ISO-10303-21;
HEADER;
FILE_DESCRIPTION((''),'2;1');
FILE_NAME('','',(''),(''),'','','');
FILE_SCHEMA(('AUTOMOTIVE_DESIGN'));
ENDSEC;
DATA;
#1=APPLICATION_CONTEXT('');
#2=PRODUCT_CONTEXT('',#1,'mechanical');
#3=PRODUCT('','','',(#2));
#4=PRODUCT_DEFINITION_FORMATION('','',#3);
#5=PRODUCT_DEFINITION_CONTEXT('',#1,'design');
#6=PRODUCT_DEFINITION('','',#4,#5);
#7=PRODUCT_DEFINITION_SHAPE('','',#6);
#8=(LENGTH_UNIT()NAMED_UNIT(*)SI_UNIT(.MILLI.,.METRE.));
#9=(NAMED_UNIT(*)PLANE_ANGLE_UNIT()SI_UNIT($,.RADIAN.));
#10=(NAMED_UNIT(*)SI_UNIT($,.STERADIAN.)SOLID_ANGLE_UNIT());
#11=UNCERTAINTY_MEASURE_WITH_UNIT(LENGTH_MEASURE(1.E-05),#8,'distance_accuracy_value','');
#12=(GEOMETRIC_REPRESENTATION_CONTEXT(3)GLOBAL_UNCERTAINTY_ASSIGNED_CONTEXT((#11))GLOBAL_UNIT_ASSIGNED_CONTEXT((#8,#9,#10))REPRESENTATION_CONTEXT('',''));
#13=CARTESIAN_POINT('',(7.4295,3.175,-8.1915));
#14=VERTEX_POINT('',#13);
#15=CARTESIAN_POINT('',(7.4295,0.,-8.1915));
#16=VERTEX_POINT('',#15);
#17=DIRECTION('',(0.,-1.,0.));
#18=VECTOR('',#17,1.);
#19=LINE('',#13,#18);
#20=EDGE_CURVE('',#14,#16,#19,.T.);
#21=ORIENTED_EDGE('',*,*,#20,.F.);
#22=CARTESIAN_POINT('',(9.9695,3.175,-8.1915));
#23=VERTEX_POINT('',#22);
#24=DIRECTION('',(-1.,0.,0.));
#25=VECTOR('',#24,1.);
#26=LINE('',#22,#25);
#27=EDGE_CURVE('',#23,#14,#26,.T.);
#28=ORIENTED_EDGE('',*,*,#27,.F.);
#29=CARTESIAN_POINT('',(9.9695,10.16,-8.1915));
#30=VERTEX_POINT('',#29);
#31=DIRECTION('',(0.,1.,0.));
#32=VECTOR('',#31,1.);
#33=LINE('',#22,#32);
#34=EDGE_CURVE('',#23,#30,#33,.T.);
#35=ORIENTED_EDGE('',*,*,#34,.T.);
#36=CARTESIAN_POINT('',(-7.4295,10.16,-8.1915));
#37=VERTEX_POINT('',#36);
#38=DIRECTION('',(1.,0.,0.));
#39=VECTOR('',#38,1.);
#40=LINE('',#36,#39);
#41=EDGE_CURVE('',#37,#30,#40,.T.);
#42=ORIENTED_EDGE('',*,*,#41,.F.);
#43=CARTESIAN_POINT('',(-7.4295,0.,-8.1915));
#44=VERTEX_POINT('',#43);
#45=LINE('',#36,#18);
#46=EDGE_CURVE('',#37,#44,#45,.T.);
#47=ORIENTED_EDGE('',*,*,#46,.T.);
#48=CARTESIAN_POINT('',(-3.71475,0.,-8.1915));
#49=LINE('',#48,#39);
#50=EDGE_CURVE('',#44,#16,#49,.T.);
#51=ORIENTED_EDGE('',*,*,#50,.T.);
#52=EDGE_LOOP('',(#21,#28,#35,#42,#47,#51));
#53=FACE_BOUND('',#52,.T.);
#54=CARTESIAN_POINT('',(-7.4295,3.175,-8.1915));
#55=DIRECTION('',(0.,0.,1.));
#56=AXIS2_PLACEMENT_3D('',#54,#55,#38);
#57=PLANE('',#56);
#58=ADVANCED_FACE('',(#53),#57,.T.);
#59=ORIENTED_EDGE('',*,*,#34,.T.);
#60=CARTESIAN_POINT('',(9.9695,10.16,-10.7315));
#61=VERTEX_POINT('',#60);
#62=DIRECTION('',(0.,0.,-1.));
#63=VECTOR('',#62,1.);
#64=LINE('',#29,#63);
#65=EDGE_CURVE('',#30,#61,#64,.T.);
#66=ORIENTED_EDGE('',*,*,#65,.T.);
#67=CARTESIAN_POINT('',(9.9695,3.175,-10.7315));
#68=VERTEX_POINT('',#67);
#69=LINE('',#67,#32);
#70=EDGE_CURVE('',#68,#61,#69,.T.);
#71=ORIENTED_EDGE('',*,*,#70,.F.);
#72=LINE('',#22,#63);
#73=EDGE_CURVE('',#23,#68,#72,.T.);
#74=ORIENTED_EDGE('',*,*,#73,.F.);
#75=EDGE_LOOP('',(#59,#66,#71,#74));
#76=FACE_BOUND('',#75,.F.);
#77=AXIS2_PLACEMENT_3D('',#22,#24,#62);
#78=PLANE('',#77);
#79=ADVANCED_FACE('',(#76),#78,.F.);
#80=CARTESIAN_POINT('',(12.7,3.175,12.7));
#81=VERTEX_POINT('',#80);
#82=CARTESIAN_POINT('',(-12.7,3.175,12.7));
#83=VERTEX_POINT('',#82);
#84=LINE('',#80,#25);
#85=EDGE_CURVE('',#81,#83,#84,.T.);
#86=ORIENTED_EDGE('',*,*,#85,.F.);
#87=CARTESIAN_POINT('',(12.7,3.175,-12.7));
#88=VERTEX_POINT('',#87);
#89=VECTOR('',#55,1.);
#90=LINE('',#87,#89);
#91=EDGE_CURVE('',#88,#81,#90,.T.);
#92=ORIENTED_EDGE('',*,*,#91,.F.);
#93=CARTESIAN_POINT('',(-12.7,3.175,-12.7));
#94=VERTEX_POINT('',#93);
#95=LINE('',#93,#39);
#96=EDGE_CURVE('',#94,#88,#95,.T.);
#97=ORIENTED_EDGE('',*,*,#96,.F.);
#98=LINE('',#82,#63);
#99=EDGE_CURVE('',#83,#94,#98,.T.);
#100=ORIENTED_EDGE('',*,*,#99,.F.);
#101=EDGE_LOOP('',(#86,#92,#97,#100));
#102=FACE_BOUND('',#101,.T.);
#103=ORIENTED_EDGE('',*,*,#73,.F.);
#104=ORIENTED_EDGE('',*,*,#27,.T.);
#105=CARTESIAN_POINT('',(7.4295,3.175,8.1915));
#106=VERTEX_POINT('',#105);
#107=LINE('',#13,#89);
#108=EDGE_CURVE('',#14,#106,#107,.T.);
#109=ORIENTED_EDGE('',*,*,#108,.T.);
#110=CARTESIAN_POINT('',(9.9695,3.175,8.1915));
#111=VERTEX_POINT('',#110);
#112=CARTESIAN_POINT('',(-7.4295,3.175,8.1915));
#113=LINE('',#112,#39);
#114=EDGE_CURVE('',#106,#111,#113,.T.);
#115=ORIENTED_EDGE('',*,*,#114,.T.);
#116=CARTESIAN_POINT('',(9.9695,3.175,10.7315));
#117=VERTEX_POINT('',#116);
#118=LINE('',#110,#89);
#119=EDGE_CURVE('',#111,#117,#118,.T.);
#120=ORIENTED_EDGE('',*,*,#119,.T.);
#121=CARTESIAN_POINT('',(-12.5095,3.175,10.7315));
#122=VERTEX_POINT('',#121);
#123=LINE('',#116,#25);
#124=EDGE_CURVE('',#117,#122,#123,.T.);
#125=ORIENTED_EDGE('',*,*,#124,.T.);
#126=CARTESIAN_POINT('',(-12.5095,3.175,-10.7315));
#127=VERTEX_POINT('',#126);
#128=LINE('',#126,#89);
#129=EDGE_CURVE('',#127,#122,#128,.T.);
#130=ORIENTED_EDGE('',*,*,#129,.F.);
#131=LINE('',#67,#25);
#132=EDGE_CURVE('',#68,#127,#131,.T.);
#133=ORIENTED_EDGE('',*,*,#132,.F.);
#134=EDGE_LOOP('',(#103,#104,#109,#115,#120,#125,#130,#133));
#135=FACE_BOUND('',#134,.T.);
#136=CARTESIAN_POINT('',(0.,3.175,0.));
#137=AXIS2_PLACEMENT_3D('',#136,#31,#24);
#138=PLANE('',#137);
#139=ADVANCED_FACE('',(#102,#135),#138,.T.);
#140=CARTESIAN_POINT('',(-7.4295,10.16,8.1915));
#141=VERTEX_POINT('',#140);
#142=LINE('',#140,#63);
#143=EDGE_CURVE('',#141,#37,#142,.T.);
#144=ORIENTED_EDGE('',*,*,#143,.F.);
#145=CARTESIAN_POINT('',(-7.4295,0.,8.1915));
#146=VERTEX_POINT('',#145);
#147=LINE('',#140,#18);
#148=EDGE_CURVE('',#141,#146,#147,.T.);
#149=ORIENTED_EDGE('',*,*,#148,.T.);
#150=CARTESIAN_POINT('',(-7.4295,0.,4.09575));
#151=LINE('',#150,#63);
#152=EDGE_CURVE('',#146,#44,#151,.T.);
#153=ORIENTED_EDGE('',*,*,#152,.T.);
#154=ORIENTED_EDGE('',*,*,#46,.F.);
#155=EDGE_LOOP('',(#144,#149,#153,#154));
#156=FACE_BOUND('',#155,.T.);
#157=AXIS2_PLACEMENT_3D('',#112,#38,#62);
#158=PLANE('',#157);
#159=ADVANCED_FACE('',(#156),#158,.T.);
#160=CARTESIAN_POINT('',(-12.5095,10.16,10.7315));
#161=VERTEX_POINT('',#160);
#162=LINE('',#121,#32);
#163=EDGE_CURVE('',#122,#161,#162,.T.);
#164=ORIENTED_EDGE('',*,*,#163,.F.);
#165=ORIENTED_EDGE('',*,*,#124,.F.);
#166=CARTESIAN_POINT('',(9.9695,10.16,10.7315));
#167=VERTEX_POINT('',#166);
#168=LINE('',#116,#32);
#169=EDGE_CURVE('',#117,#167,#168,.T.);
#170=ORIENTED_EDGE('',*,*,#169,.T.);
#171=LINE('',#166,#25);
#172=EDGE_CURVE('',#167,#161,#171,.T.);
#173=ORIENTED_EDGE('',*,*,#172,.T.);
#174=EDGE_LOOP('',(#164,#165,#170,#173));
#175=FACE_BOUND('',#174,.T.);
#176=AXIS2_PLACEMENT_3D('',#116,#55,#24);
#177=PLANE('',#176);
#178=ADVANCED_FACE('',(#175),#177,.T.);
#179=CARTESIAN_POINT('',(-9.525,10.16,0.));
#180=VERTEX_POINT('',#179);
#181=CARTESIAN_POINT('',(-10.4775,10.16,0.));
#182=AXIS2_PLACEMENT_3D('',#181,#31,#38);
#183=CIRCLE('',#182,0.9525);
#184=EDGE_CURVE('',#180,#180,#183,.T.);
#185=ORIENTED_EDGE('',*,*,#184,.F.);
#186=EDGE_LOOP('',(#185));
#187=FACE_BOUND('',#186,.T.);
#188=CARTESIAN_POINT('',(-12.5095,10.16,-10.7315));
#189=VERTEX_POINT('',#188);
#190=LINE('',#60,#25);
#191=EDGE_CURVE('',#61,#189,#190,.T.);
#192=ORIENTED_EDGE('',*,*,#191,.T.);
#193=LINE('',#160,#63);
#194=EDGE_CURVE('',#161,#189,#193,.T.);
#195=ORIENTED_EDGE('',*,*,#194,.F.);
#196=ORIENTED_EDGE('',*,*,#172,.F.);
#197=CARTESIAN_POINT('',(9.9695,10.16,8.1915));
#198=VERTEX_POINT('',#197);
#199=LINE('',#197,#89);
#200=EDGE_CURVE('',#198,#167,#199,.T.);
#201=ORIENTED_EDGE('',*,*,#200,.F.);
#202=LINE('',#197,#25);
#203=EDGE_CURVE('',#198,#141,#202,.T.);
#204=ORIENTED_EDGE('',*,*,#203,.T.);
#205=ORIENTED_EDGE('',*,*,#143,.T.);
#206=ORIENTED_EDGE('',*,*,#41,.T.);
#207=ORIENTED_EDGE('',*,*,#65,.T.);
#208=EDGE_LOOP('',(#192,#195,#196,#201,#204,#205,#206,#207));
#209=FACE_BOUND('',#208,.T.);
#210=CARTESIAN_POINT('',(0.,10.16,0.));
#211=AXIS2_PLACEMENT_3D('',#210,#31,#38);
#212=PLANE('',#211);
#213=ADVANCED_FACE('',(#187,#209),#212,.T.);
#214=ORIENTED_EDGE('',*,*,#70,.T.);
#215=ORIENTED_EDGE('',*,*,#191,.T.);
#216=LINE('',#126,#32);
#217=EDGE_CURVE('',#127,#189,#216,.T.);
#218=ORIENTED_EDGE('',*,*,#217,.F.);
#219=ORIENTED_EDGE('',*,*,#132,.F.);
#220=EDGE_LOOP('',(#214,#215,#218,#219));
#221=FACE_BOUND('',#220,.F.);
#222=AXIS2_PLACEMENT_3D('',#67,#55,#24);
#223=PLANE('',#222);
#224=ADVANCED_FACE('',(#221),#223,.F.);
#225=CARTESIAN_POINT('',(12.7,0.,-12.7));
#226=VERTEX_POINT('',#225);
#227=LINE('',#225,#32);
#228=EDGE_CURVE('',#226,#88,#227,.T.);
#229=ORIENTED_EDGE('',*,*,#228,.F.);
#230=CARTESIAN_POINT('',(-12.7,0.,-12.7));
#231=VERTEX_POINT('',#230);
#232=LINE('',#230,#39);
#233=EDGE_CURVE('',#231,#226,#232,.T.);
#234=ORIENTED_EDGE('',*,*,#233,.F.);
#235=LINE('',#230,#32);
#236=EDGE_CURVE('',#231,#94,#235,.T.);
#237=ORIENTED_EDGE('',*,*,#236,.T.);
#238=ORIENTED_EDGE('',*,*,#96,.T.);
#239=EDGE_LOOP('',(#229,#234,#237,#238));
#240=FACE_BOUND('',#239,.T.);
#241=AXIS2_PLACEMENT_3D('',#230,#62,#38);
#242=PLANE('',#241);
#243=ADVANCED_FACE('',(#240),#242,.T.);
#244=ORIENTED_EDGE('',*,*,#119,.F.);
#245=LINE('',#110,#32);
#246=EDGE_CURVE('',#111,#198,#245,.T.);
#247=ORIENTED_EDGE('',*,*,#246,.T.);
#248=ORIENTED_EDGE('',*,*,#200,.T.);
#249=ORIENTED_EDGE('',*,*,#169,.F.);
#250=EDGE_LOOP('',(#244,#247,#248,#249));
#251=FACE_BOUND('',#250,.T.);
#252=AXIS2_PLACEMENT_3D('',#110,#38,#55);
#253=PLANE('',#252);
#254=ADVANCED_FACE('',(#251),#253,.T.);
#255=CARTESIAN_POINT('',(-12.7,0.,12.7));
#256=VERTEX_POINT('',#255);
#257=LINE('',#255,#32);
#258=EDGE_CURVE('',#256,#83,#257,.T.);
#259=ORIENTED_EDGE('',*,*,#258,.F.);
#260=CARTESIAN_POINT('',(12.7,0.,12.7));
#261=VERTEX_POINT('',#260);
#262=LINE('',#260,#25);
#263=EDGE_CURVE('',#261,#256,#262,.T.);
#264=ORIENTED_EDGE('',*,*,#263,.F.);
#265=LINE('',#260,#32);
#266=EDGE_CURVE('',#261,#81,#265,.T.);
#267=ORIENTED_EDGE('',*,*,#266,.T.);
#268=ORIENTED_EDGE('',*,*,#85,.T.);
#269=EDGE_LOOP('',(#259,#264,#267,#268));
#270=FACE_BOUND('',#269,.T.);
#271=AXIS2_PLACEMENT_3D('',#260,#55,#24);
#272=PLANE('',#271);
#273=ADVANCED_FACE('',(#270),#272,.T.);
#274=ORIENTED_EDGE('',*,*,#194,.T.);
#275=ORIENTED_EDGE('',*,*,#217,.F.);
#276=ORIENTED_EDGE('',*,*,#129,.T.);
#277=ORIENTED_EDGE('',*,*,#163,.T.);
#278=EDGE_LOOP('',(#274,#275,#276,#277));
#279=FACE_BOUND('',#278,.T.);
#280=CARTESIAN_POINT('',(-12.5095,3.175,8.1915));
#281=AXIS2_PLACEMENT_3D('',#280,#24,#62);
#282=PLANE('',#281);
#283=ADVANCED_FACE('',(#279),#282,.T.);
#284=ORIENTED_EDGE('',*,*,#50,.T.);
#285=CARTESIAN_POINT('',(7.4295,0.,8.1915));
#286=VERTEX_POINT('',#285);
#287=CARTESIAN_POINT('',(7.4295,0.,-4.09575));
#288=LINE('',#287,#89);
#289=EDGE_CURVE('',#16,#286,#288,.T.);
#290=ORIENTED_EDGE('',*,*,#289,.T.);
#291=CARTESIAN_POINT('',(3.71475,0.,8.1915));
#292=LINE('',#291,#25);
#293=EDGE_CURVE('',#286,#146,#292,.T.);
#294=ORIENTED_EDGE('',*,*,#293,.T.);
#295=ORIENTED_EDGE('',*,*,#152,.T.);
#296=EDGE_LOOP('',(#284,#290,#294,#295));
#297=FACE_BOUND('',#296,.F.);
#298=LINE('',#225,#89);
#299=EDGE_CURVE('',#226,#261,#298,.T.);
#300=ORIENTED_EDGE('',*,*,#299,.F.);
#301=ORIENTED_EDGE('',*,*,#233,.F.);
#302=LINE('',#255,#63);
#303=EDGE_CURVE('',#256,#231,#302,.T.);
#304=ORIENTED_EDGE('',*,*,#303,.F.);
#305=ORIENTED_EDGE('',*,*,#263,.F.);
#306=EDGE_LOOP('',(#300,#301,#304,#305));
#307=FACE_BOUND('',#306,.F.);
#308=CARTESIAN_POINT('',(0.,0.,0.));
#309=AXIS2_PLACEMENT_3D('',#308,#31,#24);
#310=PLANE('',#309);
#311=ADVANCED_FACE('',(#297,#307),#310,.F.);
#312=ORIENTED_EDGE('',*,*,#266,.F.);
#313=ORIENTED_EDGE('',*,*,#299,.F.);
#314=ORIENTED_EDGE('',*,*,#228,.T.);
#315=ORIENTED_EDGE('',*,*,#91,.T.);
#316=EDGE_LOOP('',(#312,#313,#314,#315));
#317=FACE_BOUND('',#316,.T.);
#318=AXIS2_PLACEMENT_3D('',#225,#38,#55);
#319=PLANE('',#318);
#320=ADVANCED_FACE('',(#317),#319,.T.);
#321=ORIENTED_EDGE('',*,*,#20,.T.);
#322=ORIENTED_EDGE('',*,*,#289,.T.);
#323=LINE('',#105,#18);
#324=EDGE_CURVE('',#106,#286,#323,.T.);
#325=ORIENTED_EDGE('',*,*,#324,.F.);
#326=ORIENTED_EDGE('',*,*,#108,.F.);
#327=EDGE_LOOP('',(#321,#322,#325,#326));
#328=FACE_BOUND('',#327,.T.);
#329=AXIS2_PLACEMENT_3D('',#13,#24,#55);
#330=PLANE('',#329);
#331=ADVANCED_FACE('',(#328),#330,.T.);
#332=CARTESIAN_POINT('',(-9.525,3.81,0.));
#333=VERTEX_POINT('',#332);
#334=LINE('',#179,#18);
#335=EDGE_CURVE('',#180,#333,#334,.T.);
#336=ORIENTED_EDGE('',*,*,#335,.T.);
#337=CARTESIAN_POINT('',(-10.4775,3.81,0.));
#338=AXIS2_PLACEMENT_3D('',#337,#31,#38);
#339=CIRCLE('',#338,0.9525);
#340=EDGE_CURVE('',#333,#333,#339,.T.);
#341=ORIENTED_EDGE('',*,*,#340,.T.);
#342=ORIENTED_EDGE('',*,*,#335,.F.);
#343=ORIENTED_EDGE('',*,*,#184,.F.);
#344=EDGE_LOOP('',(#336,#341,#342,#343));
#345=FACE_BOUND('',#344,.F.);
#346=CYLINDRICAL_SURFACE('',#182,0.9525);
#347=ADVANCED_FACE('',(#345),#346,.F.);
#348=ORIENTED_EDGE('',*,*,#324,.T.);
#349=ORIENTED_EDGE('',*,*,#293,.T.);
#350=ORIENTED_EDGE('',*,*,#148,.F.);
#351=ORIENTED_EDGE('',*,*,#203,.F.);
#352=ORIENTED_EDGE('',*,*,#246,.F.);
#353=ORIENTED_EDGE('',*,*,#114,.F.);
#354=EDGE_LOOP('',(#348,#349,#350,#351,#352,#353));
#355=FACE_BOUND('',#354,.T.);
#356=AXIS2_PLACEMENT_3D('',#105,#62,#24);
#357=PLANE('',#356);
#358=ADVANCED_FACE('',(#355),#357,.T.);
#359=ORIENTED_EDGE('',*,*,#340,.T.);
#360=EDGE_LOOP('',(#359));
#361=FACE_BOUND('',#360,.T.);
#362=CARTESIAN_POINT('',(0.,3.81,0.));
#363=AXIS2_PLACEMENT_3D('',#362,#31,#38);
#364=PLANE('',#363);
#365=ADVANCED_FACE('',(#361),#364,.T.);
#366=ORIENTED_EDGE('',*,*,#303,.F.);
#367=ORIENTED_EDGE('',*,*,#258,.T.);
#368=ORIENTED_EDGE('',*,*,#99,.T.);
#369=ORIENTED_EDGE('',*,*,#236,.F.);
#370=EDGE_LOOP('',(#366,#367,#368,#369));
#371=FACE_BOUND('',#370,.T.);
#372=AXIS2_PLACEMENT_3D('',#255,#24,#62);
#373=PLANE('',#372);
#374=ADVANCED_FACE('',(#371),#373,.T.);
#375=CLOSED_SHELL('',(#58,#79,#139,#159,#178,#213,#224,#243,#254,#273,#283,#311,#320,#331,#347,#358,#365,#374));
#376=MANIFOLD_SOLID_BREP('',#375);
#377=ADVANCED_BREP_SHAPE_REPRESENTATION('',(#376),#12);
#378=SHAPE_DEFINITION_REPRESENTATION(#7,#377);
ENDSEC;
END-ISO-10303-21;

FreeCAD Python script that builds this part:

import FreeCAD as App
import Part
import Sketcher

V = App.Vector
Q = App.Units.Quantity


def add_polygon(sketch, points):
    """Adds a closed chain of lines whose ends are joined by coincident constraints."""
    first, n = sketch.GeometryCount, len(points)
    for a, b in zip(points, points[1:] + points[:1]):
        sketch.addGeometry(Part.LineSegment(App.Vector(*a, 0), App.Vector(*b, 0)), False)
    for i in range(n):
        sketch.addConstraint(Sketcher.Constraint("Coincident", first + i, 2, first + (i + 1) % n, 1))

doc = App.newDocument("Part")
body = doc.addObject("PartDesign::Body", "Body")

sketch1 = body.newObject("Sketcher::SketchObject", "Sketch")
sketch1.AttachmentSupport = (doc.getObject("XZ_Plane"), [""])
sketch1.MapMode = "FlatFace"
add_polygon(sketch1, [(-13, 13), (13, 13), (13, -13), (-13, -13)])
sketch1.addConstraint([
    Sketcher.Constraint("Horizontal", 0),
    Sketcher.Constraint("Vertical", 1),
    Sketcher.Constraint("Horizontal", 2),
    Sketcher.Constraint("Vertical", 3),
    Sketcher.Constraint("Symmetric", 0, 2, 2, 2, -1, 1),
    Sketcher.Constraint("Equal", 2, 1),
    Sketcher.Constraint("DistanceX", 0, 1, 0, 2, Q("1 in")),
])
pad1 = body.newObject("PartDesign::Pad", "Pad")
pad1.Profile = sketch1
pad1.Length = Q("0.125 in")
pad1.Reversed = True

sketch2 = body.newObject("Sketcher::SketchObject", "Sketch001")
sketch2.AttachmentSupport = (doc.getObject("XZ_Plane"), [""])
sketch2.MapMode = "FlatFace"
sketch2.AttachmentOffset = App.Placement(V(0, 0, -0.125 * 25.4), App.Rotation())
add_polygon(sketch2, [(-7, 8), (7, 8), (7, -8), (-7, -8)])
sketch2.addConstraint([
    Sketcher.Constraint("Horizontal", 0),
    Sketcher.Constraint("Vertical", 1),
    Sketcher.Constraint("Horizontal", 2),
    Sketcher.Constraint("Vertical", 3),
    Sketcher.Constraint("Symmetric", 0, 2, 2, 2, -1, 1),
    Sketcher.Constraint("DistanceX", 0, 1, 0, 2, Q("0.585 in")),
    Sketcher.Constraint("DistanceY", 1, 2, 1, 1, Q("0.645 in")),
])
pocket1 = body.newObject("PartDesign::Pocket", "Pocket")
pocket1.Profile = sketch2
pocket1.Type = "ThroughAll"
pocket1.Reversed = True

sketch3 = body.newObject("Sketcher::SketchObject", "Sketch002")
sketch3.AttachmentSupport = (doc.getObject("XZ_Plane"), [""])
sketch3.MapMode = "FlatFace"
sketch3.AttachmentOffset = App.Placement(V(0, 0, -0.125 * 25.4), App.Rotation())
add_polygon(sketch3, [(-12.5, 10.7), (10, 10.7), (10, 8.2), (-7.4, 8.2), (-7.4, -8.2), (10, -8.2), (10, -10.7), (-12.5, -10.7)])
sketch3.addConstraint([
    Sketcher.Constraint("Horizontal", 0),
    Sketcher.Constraint("Vertical", 1),
    Sketcher.Constraint("Horizontal", 2),
    Sketcher.Constraint("Vertical", 3),
    Sketcher.Constraint("Horizontal", 4),
    Sketcher.Constraint("Vertical", 5),
    Sketcher.Constraint("Horizontal", 6),
    Sketcher.Constraint("Vertical", 7),
    Sketcher.Constraint("Symmetric", 1, 2, 4, 2, -1),
    Sketcher.Constraint("Equal", 1, 5),
    Sketcher.Constraint("DistanceY", 1, 2, 1, 1, Q("0.1 in")),
    Sketcher.Constraint("DistanceX", 6, 2, 3, 2, Q("0.2 in")),
    Sketcher.Constraint("DistanceX", 0, 1, 0, 2, Q("0.885 in")),
    Sketcher.Constraint("DistanceY", 3, 2, 3, 1, Q("0.645 in")),
    Sketcher.Constraint("DistanceX", -1, 1, 0, 2, Q("0.3925 in")),
])
pad2 = body.newObject("PartDesign::Pad", "Pad001")
pad2.Profile = sketch3
pad2.Length = Q("0.275 in")
pad2.Reversed = True

sketch4 = body.newObject("Sketcher::SketchObject", "Sketch003")
sketch4.AttachmentSupport = (doc.getObject("XZ_Plane"), [""])
sketch4.MapMode = "FlatFace"
sketch4.AttachmentOffset = App.Placement(V(0, 0, -0.4 * 25.4), App.Rotation())
sketch4.addGeometry(Part.Circle(V(-10.5, 0, 0), V(0, 0, 1), 1), False)
sketch4.addConstraint([
    Sketcher.Constraint("PointOnObject", 0, 3, -1),
    Sketcher.Constraint("Diameter", 0, Q("0.075 in")),
    Sketcher.Constraint("DistanceX", 0, 3, -1, 1, Q("0.4125 in")),
])
pocket2 = body.newObject("PartDesign::Pocket", "Pocket001")
pocket2.Profile = sketch4
pocket2.Length = Q("0.25 in")
pocket2.Reversed = True

doc.recompute()
